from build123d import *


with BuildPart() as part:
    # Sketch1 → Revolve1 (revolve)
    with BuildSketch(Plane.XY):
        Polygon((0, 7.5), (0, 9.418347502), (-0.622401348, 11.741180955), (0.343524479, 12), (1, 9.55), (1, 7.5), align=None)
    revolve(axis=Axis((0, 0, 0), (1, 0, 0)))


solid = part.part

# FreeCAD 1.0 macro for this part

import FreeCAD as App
import Part
import Sketcher
from FreeCAD import Vector
Q = App.Units.Quantity

doc = App.newDocument("Part")
params = doc.addObject("Spreadsheet::Sheet", "Params")
for row, (alias, value) in enumerate([
    ("sketch1_width", "1 mm"),
    ("sketch1_length", "1 mm"),
    ("sketch1_height", "2.05 mm"),
    ("revolution_angle", "360 deg"),
], start=1):
    params.set(f"A{row}", alias)
    params.set(f"B{row}", "=" + value)
    params.setAlias(f"B{row}", alias)

body = doc.addObject("PartDesign::Body", "Body")

# Sketch on XY plane
sketch1 = body.newObject("Sketcher::SketchObject", "Sketch")
sketch1.AttachmentSupport = (doc.getObject("XY_Plane"), [""])
sketch1.MapMode = "FlatFace"
sketch1.addGeometry(Part.LineSegment(Vector(0, 9.4, 0), Vector(0, 7.5, 0)), False)
sketch1.addGeometry(Part.LineSegment(Vector(0, 7.5, 0), Vector(1, 7.5, 0)), False)
sketch1.addGeometry(Part.LineSegment(Vector(1, 7.5, 0), Vector(1, 9.6, 0)), False)
sketch1.addGeometry(Part.LineSegment(Vector(1, 9.6, 0), Vector(0.3, 12, 0)), False)
sketch1.addGeometry(Part.LineSegment(Vector(0.3, 12, 0), Vector(-0.6, 11.7, 0)), False)
sketch1.addGeometry(Part.LineSegment(Vector(-0.6, 11.7, 0), Vector(0, 9.4, 0)), False)
sketch1.addConstraint(Sketcher.Constraint("Coincident", 0, 2, 1, 1))
sketch1.addConstraint(Sketcher.Constraint("Coincident", 1, 2, 2, 1))
sketch1.addConstraint(Sketcher.Constraint("Coincident", 2, 2, 3, 1))
sketch1.addConstraint(Sketcher.Constraint("Coincident", 3, 2, 4, 1))
sketch1.addConstraint(Sketcher.Constraint("Coincident", 4, 2, 5, 1))
sketch1.addConstraint(Sketcher.Constraint("Coincident", 5, 2, 0, 1))
sketch1.addConstraint(Sketcher.Constraint("Vertical", 0))
sketch1.addConstraint(Sketcher.Constraint("Horizontal", 1))
sketch1.addConstraint(Sketcher.Constraint("Vertical", 2))
sketch1.addConstraint(Sketcher.Constraint("PointOnObject", 0, 2, -2))
sketch1.addConstraint(Sketcher.Constraint("Perpendicular", 3, 4))
sketch1.addConstraint(Sketcher.Constraint("Perpendicular", 4, 5))
sketch1.addConstraint(Sketcher.Constraint("DistanceX", 1, 1, 1, 2, Q("1 mm")))
sketch1.addConstraint(Sketcher.Constraint("Angle", 3, Q("105 deg")))
sketch1.addConstraint(Sketcher.Constraint("Distance", 4, Q("1 mm")))
sketch1.addConstraint(Sketcher.Constraint("DistanceY", -1, 1, 3, 2, Q("12 mm")))
sketch1.addConstraint(Sketcher.Constraint("DistanceY", 2, 1, 2, 2, Q("2.05 mm")))
sketch1.addConstraint(Sketcher.Constraint("DistanceY", -1, 1, 0, 2, Q("7.5 mm")))
sketch1.setExpression("Constraints[12]", "Params.sketch1_width")
sketch1.setExpression("Constraints[14]", "Params.sketch1_length")
sketch1.setExpression("Constraints[16]", "Params.sketch1_height")
revolution = body.newObject("PartDesign::Revolution", "Revolution")
revolution.Profile = sketch1
revolution.ReferenceAxis = (sketch1, ["H_Axis"])
revolution.setExpression("Angle", "Params.revolution_angle")

doc.recompute()
